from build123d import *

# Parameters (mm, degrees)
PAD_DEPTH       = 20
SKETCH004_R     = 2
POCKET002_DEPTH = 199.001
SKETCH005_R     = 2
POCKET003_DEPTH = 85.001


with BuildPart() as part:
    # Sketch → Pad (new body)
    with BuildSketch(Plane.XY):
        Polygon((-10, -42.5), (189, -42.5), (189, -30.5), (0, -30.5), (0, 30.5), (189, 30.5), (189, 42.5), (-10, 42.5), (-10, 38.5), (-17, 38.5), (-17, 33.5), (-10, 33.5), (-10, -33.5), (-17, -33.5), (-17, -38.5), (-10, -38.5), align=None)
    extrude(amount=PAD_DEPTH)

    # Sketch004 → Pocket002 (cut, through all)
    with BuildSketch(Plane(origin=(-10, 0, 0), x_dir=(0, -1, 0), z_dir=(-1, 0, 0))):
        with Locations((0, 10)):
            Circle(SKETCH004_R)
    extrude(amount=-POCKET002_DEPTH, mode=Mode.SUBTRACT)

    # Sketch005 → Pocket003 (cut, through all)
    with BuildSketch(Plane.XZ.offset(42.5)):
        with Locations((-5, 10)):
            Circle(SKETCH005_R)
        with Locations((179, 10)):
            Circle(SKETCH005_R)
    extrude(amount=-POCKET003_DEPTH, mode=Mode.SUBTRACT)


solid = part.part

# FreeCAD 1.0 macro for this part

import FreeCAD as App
import Part
import Sketcher

V = App.Vector


def add_polygon(sketch, points):
    """Adds a closed chain of lines whose ends are joined by coincident constraints."""
    first, n = sketch.GeometryCount, len(points)
    for a, b in zip(points, points[1:] + points[:1]):
        sketch.addGeometry(Part.LineSegment(App.Vector(*a, 0), App.Vector(*b, 0)), False)
    for i in range(n):
        sketch.addConstraint(Sketcher.Constraint("Coincident", first + i, 2, first + (i + 1) % n, 1))

doc = App.newDocument("Part")
params = doc.addObject("Spreadsheet::Sheet", "Params")
for row, (alias, value) in enumerate([
    ("sketch1_width", "199 mm"),
    ("sketch1_width2", "189 mm"),
    ("sketch1_width3", "7 mm"),
    ("sketch1_height", "12 mm"),
    ("sketch1_height2", "61 mm"),
    ("pad1_length", "20 mm"),
    ("sketch2_diameter", "4 mm"),
    ("sketch3_diameter", "4 mm"),
], start=1):
    params.set(f"A{row}", alias)
    params.set(f"B{row}", "=" + value)
    params.setAlias(f"B{row}", alias)

body = doc.addObject("PartDesign::Body", "Body")

# Sketch on XY plane
sketch1 = body.newObject("Sketcher::SketchObject", "Sketch")
sketch1.AttachmentSupport = (doc.getObject("XY_Plane"), [""])
sketch1.MapMode = "FlatFace"
add_polygon(sketch1, [(-10, -42.5), (189, -42.5), (189, -30.5), (0, -30.5), (0, 30.5), (189, 30.5), (189, 42.5), (-10, 42.5), (-10, 38.5), (-17, 38.5), (-17, 33.5), (-10, 33.5), (-10, -33.5), (-17, -33.5), (-17, -38.5), (-10, -38.5)])  # lines 0-15
sketch1.addConstraint(Sketcher.Constraint("Horizontal", 0))
sketch1.addConstraint(Sketcher.Constraint("Vertical", 1))
sketch1.addConstraint(Sketcher.Constraint("Horizontal", 2))
sketch1.addConstraint(Sketcher.Constraint("Vertical", 3))
sketch1.addConstraint(Sketcher.Constraint("Horizontal", 4))
sketch1.addConstraint(Sketcher.Constraint("Vertical", 5))
sketch1.addConstraint(Sketcher.Constraint("Horizontal", 6))
sketch1.addConstraint(Sketcher.Constraint("Vertical", 7))
sketch1.addConstraint(Sketcher.Constraint("Horizontal", 8))
sketch1.addConstraint(Sketcher.Constraint("Vertical", 9))
sketch1.addConstraint(Sketcher.Constraint("Horizontal", 10))
sketch1.addConstraint(Sketcher.Constraint("Vertical", 11))
sketch1.addConstraint(Sketcher.Constraint("Horizontal", 12))
sketch1.addConstraint(Sketcher.Constraint("Vertical", 13))
sketch1.addConstraint(Sketcher.Constraint("Horizontal", 14))
sketch1.addConstraint(Sketcher.Constraint("Vertical", 15))
sketch1.addConstraint(Sketcher.Constraint("Symmetric", 2, 2, 3, 2, -1, 1))
sketch1.addConstraint(Sketcher.Constraint("Symmetric", 0, 2, 5, 2, -1))
sketch1.addConstraint(Sketcher.Constraint("Symmetric", 9, 2, 12, 2, -1))
sketch1.addConstraint(Sketcher.Constraint("Symmetric", 7, 2, 14, 2, -1))
sketch1.addConstraint(Sketcher.Constraint("Vertical", 7, 2, 10, 2))
sketch1.addConstraint(Sketcher.Constraint("DistanceX", 0, 1, 0, 2, 199.0))
sketch1.addConstraint(Sketcher.Constraint("DistanceX", 2, 2, 2, 1, 189.0))
sketch1.addConstraint(Sketcher.Constraint("DistanceX", 8, 2, 8, 1, 7.0))
sketch1.addConstraint(Sketcher.Constraint("DistanceY", 1, 1, 1, 2, 12.0))
sketch1.addConstraint(Sketcher.Constraint("DistanceY", 3, 1, 3, 2, 61.0))
sketch1.addConstraint(Sketcher.Constraint("DistanceY", 7, 2, 7, 1, 4.0))
sketch1.addConstraint(Sketcher.Constraint("DistanceY", 9, 2, 9, 1, 5.0))
sketch1.setExpression("Constraints[37]", "Params.sketch1_width")
sketch1.setExpression("Constraints[38]", "Params.sketch1_width2")
sketch1.setExpression("Constraints[39]", "Params.sketch1_width3")
sketch1.setExpression("Constraints[40]", "Params.sketch1_height")
sketch1.setExpression("Constraints[41]", "Params.sketch1_height2")
pad1 = body.newObject("PartDesign::Pad", "Pad")
pad1.Profile = sketch1
pad1.setExpression("Length", "Params.pad1_length")

# Sketch on YZ plane
sketch2 = body.newObject("Sketcher::SketchObject", "Sketch001")
sketch2.AttachmentSupport = (doc.getObject("YZ_Plane"), [""])
sketch2.MapMode = "FlatFace"
sketch2.AttachmentOffset = App.Placement(V(0, 0, -10), App.Rotation())
sketch2.addGeometry(Part.Circle(V(0, 10, 0), V(0, 0, 1), 2), False)
sketch2.addConstraint(Sketcher.Constraint("PointOnObject", 0, 3, -2))
sketch2.addConstraint(Sketcher.Constraint("Diameter", 0, 4.0))
sketch2.addConstraint(Sketcher.Constraint("DistanceY", -1, 1, 0, 3, 10.0))
sketch2.setExpression("Constraints[1]", "Params.sketch2_diameter")
pocket1 = body.newObject("PartDesign::Pocket", "Pocket")
pocket1.Profile = sketch2
pocket1.Type = "ThroughAll"
pocket1.Reversed = True

# Sketch on XZ plane
sketch3 = body.newObject("Sketcher::SketchObject", "Sketch002")
sketch3.AttachmentSupport = (doc.getObject("XZ_Plane"), [""])
sketch3.MapMode = "FlatFace"
sketch3.AttachmentOffset = App.Placement(V(0, 0, 42.5), App.Rotation())
sketch3.addGeometry(Part.Circle(V(-5, 10, 0), V(0, 0, 1), 2), False)
sketch3.addGeometry(Part.Circle(V(179, 10, 0), V(0, 0, 1), 2), False)
sketch3.addConstraint(Sketcher.Constraint("Equal", 0, 1))
sketch3.addConstraint(Sketcher.Constraint("Horizontal", 0, 3, 1, 3))
sketch3.addConstraint(Sketcher.Constraint("Diameter", 0, 4.0))
sketch3.addConstraint(Sketcher.Constraint("DistanceX", 0, 3, -1, 1, 5.0))
sketch3.addConstraint(Sketcher.Constraint("DistanceY", -1, 1, 0, 3, 10.0))
sketch3.addConstraint(Sketcher.Constraint("DistanceX", -1, 1, 1, 3, 179.0))
sketch3.setExpression("Constraints[2]", "Params.sketch3_diameter")
pocket2 = body.newObject("PartDesign::Pocket", "Pocket001")
pocket2.Profile = sketch3
pocket2.Type = "ThroughAll"

doc.recompute()
